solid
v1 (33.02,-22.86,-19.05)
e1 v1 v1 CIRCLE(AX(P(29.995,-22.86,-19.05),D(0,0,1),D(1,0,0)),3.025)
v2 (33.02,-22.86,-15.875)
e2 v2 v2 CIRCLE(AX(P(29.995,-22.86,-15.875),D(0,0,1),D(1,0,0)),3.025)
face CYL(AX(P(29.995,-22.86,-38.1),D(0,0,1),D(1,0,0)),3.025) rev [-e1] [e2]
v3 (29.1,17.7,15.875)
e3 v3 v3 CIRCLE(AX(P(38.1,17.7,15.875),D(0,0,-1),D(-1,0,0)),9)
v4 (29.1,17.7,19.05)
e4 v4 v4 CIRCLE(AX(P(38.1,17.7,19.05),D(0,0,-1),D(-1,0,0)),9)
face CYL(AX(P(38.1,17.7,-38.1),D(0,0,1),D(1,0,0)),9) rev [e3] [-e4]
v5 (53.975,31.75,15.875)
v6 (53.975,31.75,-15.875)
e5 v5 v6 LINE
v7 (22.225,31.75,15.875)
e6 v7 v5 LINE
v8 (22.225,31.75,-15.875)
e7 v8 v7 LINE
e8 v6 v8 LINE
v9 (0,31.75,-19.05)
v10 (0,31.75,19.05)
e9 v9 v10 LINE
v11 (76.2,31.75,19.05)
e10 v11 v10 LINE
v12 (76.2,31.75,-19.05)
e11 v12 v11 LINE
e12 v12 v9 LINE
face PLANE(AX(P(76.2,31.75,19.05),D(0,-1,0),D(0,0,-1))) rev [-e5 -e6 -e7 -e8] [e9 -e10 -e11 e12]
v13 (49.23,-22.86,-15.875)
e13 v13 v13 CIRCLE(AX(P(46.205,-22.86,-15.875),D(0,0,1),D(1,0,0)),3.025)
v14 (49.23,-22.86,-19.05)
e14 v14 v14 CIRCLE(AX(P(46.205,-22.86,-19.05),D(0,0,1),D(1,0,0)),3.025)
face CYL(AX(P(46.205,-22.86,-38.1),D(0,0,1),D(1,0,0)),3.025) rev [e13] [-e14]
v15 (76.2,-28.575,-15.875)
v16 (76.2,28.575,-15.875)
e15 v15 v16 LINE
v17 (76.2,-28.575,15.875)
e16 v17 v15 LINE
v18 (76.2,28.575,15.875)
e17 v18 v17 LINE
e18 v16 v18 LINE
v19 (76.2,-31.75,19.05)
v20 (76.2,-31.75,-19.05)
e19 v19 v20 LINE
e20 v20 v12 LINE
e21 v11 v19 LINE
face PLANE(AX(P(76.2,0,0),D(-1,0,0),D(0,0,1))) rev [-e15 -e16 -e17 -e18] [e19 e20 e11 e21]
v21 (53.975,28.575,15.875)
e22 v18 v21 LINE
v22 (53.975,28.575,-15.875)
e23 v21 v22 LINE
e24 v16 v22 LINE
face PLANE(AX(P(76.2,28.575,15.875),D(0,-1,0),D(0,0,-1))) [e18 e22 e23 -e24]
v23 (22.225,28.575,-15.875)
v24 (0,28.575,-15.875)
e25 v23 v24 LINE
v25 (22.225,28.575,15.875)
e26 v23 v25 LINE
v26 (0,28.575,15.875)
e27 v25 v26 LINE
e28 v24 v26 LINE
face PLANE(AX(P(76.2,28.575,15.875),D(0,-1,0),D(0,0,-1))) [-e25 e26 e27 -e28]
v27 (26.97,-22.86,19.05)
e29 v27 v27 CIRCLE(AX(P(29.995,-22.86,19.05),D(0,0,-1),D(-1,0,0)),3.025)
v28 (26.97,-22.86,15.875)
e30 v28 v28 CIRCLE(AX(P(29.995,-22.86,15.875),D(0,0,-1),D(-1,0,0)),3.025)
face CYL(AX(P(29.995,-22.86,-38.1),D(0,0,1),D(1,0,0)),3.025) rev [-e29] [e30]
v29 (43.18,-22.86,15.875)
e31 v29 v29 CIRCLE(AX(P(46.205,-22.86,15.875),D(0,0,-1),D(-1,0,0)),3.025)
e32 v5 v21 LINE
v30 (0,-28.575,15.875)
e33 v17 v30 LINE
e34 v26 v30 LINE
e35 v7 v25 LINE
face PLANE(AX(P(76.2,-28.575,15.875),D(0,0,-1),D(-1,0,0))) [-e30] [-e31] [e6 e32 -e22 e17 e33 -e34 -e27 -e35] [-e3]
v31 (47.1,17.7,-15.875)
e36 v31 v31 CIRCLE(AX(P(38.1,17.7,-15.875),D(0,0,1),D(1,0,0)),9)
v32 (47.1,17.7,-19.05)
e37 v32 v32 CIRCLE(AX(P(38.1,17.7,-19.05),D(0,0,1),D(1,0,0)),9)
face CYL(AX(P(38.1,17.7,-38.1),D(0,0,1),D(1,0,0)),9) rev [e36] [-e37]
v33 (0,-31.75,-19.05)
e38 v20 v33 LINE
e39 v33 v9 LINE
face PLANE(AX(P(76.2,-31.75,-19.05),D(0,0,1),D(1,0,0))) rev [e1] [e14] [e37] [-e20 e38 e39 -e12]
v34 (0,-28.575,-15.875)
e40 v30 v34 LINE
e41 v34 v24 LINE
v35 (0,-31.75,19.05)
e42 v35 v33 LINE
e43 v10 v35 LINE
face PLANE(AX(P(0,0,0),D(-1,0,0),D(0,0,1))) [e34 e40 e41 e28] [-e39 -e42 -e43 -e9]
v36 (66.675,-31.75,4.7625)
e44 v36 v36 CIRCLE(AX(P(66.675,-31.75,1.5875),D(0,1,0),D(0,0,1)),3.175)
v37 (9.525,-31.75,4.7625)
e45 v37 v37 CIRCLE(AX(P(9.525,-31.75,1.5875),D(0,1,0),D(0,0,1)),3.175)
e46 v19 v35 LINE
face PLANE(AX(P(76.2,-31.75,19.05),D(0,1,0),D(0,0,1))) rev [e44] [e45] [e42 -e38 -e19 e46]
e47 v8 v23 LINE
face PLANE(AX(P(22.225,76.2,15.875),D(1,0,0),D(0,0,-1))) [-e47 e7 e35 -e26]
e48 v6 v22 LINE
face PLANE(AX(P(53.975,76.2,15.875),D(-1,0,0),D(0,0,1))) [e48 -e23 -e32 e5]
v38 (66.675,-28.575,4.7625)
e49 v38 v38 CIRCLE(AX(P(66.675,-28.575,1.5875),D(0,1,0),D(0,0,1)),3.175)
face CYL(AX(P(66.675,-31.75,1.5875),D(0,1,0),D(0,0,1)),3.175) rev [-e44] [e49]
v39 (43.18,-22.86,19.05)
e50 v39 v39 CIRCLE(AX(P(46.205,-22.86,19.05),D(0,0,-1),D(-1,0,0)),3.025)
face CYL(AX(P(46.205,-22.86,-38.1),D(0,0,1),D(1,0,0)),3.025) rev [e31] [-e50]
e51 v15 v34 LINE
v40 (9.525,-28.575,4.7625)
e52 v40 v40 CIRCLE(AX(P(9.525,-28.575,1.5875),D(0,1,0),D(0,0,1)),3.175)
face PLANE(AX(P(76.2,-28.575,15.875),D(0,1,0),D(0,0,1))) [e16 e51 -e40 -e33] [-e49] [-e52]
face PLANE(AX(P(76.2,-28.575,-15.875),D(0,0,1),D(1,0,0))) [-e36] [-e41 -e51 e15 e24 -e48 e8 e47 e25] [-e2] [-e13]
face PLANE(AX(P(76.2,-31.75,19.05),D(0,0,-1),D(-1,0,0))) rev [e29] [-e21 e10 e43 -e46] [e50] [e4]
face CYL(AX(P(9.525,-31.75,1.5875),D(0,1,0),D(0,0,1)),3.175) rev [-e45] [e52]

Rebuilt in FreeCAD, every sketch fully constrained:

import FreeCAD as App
import Part
import Sketcher
Q = App.Units.Quantity


def add_polygon(sketch, points):
    """Adds a closed chain of lines whose ends are joined by coincident constraints."""
    first, n = sketch.GeometryCount, len(points)
    for a, b in zip(points, points[1:] + points[:1]):
        sketch.addGeometry(Part.LineSegment(App.Vector(*a, 0), App.Vector(*b, 0)), False)
    for i in range(n):
        sketch.addConstraint(Sketcher.Constraint("Coincident", first + i, 2, first + (i + 1) % n, 1))

doc = App.newDocument("Part")
body = doc.addObject("PartDesign::Body", "Body")

sketch1 = doc.addObject("Sketcher::SketchObject", "Sketch")
body.addObject(sketch1)
sketch1.AttachmentSupport = (doc.YZ_Plane, [""])
sketch1.MapMode = "FlatFace"
add_polygon(sketch1, [(32, 19), (-32, 19), (-32, -19), (32, -19)])
add_polygon(sketch1, [(-29, -16), (-29, 16), (29, 16), (29, -16)])
sketch1.addConstraint(Sketcher.Constraint("Horizontal", 0))
sketch1.addConstraint(Sketcher.Constraint("Vertical", 1))
sketch1.addConstraint(Sketcher.Constraint("Horizontal", 2))
sketch1.addConstraint(Sketcher.Constraint("Vertical", 3))
sketch1.addConstraint(Sketcher.Constraint("Vertical", 4))
sketch1.addConstraint(Sketcher.Constraint("Horizontal", 5))
sketch1.addConstraint(Sketcher.Constraint("Vertical", 6))
sketch1.addConstraint(Sketcher.Constraint("Horizontal", 7))
sketch1.addConstraint(Sketcher.Constraint("Symmetric", 0, 2, 2, 2, -1, 1))
sketch1.addConstraint(Sketcher.Constraint("Symmetric", 4, 2, 6, 2, -1, 1))
sketch1.addConstraint(Sketcher.Constraint("DistanceX", 0, 2, 0, 1, Q("2.5 in")))
sketch1.addConstraint(Sketcher.Constraint("DistanceY", 1, 2, 1, 1, Q("1.5 in")))
sketch1.addConstraint(Sketcher.Constraint("DistanceX", 5, 1, 5, 2, Q("2.25 in")))
sketch1.addConstraint(Sketcher.Constraint("DistanceY", 4, 1, 4, 2, Q("1.25 in")))
pad1 = doc.addObject("PartDesign::Pad", "Pad")
body.addObject(pad1)
pad1.Profile = sketch1
pad1.Length = Q("3 in")

sketch2 = doc.addObject("Sketcher::SketchObject", "Sketch001")
body.addObject(sketch2)
sketch2.AttachmentSupport = (doc.XY_Plane, [""])
sketch2.MapMode = "FlatFace"
sketch2.addGeometry(Part.Circle(App.Vector(38.1, 17.7, 0), App.Vector(0, 0, 1), 9), False)
sketch2.addGeometry(Part.Circle(App.Vector(46.2, -22.9, 0), App.Vector(0, 0, 1), 3), False)
sketch2.addGeometry(Part.Circle(App.Vector(30, -22.9, 0), App.Vector(0, 0, 1), 3), False)
sketch2.addConstraint(Sketcher.Constraint("Equal", 1, 2))
sketch2.addConstraint(Sketcher.Constraint("Horizontal", 1, 3, 2, 3))
sketch2.addConstraint(Sketcher.Constraint("DistanceX", -1, 1, 0, 3, Q("1.5 in")))
sketch2.addConstraint(Sketcher.Constraint("DistanceY", 1, 3, -1, 1, Q("0.9 in")))
sketch2.addConstraint(Sketcher.Constraint("Diameter", 0, Q("18 mm")))
sketch2.addConstraint(Sketcher.Constraint("Diameter", 1, Q("6.05 mm")))
sketch2.addConstraint(Sketcher.Constraint("DistanceY", -1, 1, 0, 3, Q("17.7 mm")))
sketch2.addConstraint(Sketcher.Constraint("DistanceX", -1, 1, 1, 3, Q("46.205 mm")))
sketch2.addConstraint(Sketcher.Constraint("DistanceX", -1, 1, 2, 3, Q("29.995 mm")))
pocket1 = doc.addObject("PartDesign::Pocket", "Pocket")
body.addObject(pocket1)
pocket1.Profile = sketch2
pocket1.Length = Q("3 in")
pocket1.Midplane = True

sketch3 = doc.addObject("Sketcher::SketchObject", "Sketch002")
body.addObject(sketch3)
sketch3.AttachmentSupport = (doc.XZ_Plane, [""])
sketch3.MapMode = "FlatFace"
add_polygon(sketch3, [(22, -16), (22, 16), (54, 16), (54, -16)])
sketch3.addConstraint(Sketcher.Constraint("Vertical", 0))
sketch3.addConstraint(Sketcher.Constraint("Horizontal", 1))
sketch3.addConstraint(Sketcher.Constraint("Vertical", 2))
sketch3.addConstraint(Sketcher.Constraint("Horizontal", 3))
sketch3.addConstraint(Sketcher.Constraint("Equal", 3, 0))
sketch3.addConstraint(Sketcher.Constraint("DistanceX", 1, 1, 1, 2, Q("1.25 in")))
sketch3.addConstraint(Sketcher.Constraint("DistanceX", -1, 1, 0, 2, Q("0.875 in")))
sketch3.addConstraint(Sketcher.Constraint("DistanceY", -1, 1, 0, 2, Q("0.625 in")))
pocket2 = doc.addObject("PartDesign::Pocket", "Pocket001")
body.addObject(pocket2)
pocket2.Profile = sketch3
pocket2.Length = Q("3 in")

sketch4 = doc.addObject("Sketcher::SketchObject", "Sketch003")
body.addObject(sketch4)
sketch4.AttachmentSupport = (doc.XZ_Plane, [""])
sketch4.MapMode = "FlatFace"
sketch4.addGeometry(Part.Circle(App.Vector(9.5, 1.6, 0), App.Vector(0, 0, 1), 3.2), False)
sketch4.addGeometry(Part.Circle(App.Vector(66.7, 1.6, 0), App.Vector(0, 0, 1), 3.2), False)
sketch4.addConstraint(Sketcher.Constraint("Equal", 0, 1))
sketch4.addConstraint(Sketcher.Constraint("Horizontal", 0, 3, 1, 3))
sketch4.addConstraint(Sketcher.Constraint("Diameter", 0, Q("0.25 in")))
sketch4.addConstraint(Sketcher.Constraint("DistanceX", 0, 3, 1, 3, Q("2.25 in")))
sketch4.addConstraint(Sketcher.Constraint("DistanceX", -1, 1, 0, 3, Q("0.375 in")))
sketch4.addConstraint(Sketcher.Constraint("DistanceY", -1, 1, 0, 3, Q("0.0625 in")))
pocket3 = doc.addObject("PartDesign::Pocket", "Pocket002")
body.addObject(pocket3)
pocket3.Profile = sketch4
pocket3.Type = "ThroughAll"
pocket3.Reversed = True

doc.recompute()
